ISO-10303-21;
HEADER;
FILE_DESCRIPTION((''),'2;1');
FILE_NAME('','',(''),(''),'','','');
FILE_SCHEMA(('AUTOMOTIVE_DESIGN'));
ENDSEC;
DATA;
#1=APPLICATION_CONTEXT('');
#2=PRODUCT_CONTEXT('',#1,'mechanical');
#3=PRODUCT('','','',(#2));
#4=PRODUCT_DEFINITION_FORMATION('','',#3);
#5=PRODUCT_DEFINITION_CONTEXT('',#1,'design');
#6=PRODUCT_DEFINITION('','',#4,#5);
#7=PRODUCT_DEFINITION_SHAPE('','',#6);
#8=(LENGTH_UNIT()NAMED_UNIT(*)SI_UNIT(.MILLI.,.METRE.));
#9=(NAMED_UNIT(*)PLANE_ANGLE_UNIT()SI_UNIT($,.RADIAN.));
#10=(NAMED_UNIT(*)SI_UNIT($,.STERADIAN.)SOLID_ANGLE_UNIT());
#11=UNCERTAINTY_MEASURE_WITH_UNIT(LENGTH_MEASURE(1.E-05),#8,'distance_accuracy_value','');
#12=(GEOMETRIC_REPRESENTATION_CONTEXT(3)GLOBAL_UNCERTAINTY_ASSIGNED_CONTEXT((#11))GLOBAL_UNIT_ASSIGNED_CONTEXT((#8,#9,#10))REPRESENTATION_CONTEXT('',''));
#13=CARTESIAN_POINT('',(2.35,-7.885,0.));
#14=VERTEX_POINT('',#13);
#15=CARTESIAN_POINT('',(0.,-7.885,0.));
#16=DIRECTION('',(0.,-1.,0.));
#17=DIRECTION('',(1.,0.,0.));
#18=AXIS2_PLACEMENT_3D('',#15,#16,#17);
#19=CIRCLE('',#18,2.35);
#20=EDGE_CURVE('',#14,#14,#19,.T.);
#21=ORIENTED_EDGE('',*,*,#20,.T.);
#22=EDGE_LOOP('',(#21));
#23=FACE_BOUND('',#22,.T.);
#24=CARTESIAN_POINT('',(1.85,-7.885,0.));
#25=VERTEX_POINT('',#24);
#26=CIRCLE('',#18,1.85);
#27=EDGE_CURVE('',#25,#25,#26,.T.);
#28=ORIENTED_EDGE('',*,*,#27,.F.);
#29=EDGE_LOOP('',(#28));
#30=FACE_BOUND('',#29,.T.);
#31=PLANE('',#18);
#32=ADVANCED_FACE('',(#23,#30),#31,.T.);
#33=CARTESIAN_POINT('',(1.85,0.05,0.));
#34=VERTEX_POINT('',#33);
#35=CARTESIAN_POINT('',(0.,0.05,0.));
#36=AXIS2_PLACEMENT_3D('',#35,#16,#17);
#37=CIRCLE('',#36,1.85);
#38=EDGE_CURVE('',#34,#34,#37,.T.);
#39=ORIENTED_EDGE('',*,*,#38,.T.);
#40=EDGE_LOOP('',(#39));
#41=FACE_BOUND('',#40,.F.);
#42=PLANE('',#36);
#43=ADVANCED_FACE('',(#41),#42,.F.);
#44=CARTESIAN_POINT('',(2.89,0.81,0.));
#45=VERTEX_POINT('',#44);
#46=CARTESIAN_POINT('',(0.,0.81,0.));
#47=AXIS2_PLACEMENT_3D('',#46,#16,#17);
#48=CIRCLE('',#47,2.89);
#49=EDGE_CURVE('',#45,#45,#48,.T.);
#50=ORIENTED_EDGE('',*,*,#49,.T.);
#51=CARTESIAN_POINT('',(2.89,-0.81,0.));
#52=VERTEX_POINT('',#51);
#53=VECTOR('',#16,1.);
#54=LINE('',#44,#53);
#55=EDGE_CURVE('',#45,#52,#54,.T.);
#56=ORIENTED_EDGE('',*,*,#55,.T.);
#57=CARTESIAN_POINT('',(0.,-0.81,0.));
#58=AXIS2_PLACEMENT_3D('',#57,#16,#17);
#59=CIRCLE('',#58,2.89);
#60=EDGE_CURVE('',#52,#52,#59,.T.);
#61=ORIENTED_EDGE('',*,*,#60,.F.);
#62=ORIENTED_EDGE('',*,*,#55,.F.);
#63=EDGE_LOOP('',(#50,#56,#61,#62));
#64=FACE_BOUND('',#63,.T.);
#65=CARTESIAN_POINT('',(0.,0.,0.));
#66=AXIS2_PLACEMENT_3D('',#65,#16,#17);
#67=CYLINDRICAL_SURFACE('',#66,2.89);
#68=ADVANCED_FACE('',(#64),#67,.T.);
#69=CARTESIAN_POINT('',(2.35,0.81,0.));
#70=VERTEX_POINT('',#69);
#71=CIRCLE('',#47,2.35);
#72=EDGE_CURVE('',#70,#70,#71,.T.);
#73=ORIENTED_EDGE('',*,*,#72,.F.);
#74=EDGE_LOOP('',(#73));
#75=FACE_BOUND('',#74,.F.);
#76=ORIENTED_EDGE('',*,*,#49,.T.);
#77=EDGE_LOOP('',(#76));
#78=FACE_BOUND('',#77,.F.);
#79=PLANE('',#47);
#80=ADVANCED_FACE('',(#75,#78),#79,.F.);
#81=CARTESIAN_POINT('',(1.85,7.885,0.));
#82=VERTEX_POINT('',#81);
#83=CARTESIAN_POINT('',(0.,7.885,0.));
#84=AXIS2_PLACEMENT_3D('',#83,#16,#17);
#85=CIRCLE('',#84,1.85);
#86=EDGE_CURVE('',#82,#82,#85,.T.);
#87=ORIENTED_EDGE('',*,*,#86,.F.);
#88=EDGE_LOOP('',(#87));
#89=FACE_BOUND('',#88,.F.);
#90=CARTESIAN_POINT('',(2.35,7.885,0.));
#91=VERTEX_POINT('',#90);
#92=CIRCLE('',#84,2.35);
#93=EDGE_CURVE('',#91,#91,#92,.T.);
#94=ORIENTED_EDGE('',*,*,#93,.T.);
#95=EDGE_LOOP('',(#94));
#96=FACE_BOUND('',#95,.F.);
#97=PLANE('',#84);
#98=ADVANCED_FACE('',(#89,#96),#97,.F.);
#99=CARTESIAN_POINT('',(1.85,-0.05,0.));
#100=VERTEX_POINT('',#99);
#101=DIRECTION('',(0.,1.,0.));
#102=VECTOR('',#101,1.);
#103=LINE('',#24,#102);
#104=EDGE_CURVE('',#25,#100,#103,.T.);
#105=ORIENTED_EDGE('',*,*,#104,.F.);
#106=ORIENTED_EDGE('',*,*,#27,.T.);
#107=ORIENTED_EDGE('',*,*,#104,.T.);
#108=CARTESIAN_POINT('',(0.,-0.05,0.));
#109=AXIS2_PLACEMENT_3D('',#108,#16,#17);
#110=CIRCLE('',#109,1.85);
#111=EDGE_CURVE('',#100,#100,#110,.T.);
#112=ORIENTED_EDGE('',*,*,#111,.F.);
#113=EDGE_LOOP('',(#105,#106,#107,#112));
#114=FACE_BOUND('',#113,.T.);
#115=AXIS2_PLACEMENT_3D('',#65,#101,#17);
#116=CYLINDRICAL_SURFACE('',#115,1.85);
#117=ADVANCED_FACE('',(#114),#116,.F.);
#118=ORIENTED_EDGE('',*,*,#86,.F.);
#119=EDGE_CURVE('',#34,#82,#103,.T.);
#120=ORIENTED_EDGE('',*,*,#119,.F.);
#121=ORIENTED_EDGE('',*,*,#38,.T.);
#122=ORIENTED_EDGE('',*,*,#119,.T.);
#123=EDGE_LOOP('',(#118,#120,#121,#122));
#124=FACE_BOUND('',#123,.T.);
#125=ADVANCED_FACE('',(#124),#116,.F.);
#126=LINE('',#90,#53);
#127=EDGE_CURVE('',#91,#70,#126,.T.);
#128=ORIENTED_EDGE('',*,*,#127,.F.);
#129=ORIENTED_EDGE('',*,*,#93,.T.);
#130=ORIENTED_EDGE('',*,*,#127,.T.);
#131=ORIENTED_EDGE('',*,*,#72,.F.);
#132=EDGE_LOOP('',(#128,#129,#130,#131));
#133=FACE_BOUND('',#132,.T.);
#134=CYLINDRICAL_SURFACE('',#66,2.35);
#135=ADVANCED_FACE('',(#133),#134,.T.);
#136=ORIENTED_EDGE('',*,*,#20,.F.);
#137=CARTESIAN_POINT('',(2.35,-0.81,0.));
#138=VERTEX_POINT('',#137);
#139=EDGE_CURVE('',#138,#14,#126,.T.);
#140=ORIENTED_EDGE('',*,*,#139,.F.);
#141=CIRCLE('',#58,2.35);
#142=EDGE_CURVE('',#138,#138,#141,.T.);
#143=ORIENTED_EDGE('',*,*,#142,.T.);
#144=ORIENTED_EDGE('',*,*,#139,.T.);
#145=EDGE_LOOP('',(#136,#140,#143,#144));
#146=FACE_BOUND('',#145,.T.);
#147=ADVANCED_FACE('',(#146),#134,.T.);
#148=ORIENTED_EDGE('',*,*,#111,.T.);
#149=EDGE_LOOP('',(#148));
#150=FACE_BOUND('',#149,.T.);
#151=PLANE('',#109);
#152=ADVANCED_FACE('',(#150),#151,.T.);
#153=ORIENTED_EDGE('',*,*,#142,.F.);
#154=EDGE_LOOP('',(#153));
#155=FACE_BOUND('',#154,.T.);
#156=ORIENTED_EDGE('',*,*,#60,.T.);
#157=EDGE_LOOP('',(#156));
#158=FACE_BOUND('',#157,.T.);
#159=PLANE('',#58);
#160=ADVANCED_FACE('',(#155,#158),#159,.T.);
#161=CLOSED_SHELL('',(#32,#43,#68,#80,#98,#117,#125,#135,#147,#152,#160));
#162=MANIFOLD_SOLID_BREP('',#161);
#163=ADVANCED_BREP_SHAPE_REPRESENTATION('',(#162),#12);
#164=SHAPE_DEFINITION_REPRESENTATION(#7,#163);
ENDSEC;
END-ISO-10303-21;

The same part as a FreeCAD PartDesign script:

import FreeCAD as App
import Part
import Sketcher
Q = App.Units.Quantity

doc = App.newDocument("Part")
body = doc.addObject("PartDesign::Body", "Body")

sketch1 = body.newObject("Sketcher::SketchObject", "Sketch")
sketch1.AttachmentSupport = (doc.getObject("XZ_Plane"), [""])
sketch1.MapMode = "FlatFace"
sketch1.addGeometry([
    Part.Circle(App.Vector(0, 0, 0), App.Vector(0, 0, 1), 2.9),
    Part.Circle(App.Vector(0, 0, 0), App.Vector(0, 0, 1), 2.4),
], False)
sketch1.addConstraint([
    Sketcher.Constraint("Coincident", 0, 3, -1, 1),
    Sketcher.Constraint("Coincident", 1, 3, -1, 1),
    Sketcher.Constraint("Diameter", 1, Q("4.7 mm")),
    Sketcher.Constraint("Diameter", 0, Q("5.78 mm")),
])
pad1 = body.newObject("PartDesign::Pad", "Pad")
pad1.Profile = sketch1
pad1.Length = 1.62
pad1.Midplane = True

sketch2 = body.newObject("Sketcher::SketchObject", "Sketch001")
sketch2.AttachmentSupport = (doc.getObject("XZ_Plane"), [""])
sketch2.MapMode = "FlatFace"
sketch2.addGeometry([
    Part.Circle(App.Vector(0, 0, 0), App.Vector(0, 0, 1), 2.4),
    Part.Circle(App.Vector(0, 0, 0), App.Vector(0, 0, 1), 1.9),
], False)
sketch2.addConstraint([
    Sketcher.Constraint("Coincident", 0, 3, -1, 1),
    Sketcher.Constraint("Coincident", 1, 3, -1, 1),
    Sketcher.Constraint("Diameter", 0, Q("4.7 mm")),
    Sketcher.Constraint("Diameter", 1, Q("3.7 mm")),
])
pad2 = body.newObject("PartDesign::Pad", "Pad001")
pad2.Profile = sketch2
pad2.Length = 15.77
pad2.Midplane = True

sketch3 = body.newObject("Sketcher::SketchObject", "Sketch002")
sketch3.AttachmentSupport = (doc.getObject("XZ_Plane"), [""])
sketch3.MapMode = "FlatFace"
sketch3.addGeometry(Part.Circle(App.Vector(0, 0, 0), App.Vector(0, 0, 1), 1.9), False)
sketch3.addConstraint([
    Sketcher.Constraint("Coincident", 0, 3, -1, 1),
    Sketcher.Constraint("Diameter", 0, Q("3.7 mm")),
])
pad3 = body.newObject("PartDesign::Pad", "Pad002")
pad3.Profile = sketch3
pad3.Length = 0.1
pad3.Midplane = True

doc.recompute()
